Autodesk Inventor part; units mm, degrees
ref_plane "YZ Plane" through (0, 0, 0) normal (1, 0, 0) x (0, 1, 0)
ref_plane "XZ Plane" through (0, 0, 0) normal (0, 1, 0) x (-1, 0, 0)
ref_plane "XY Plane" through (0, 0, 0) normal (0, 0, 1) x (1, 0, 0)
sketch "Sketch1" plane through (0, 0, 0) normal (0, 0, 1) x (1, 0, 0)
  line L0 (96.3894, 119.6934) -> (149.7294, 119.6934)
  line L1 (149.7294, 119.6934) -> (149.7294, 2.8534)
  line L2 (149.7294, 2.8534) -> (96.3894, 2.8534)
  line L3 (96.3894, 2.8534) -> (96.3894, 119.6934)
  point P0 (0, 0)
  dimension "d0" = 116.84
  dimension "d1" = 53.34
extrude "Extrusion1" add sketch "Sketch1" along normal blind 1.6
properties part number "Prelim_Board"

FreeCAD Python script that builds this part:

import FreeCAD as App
import Part
import Sketcher
from FreeCAD import Vector
Q = App.Units.Quantity


def add_polygon(sketch, points):
    """Adds a closed chain of lines whose ends are joined by coincident constraints."""
    first, n = sketch.GeometryCount, len(points)
    for a, b in zip(points, points[1:] + points[:1]):
        sketch.addGeometry(Part.LineSegment(App.Vector(*a, 0), App.Vector(*b, 0)), False)
    for i in range(n):
        sketch.addConstraint(Sketcher.Constraint("Coincident", first + i, 2, first + (i + 1) % n, 1))

doc = App.newDocument("Part")
body = doc.addObject("PartDesign::Body", "Body")

# Sketch on XY plane
sketch1 = doc.addObject("Sketcher::SketchObject", "Sketch")
body.addObject(sketch1)
sketch1.AttachmentSupport = (doc.XY_Plane, [""])
sketch1.MapMode = "FlatFace"
add_polygon(sketch1, [(150, 120), (96, 120), (96, 3), (150, 3)])  # lines 0-3
sketch1.addConstraint(Sketcher.Constraint("Horizontal", 0))
sketch1.addConstraint(Sketcher.Constraint("Vertical", 1))
sketch1.addConstraint(Sketcher.Constraint("Horizontal", 2))
sketch1.addConstraint(Sketcher.Constraint("Vertical", 3))
sketch1.addConstraint(Sketcher.Constraint("DistanceX", 0, 2, 0, 1, Q("2.1 in")))
sketch1.addConstraint(Sketcher.Constraint("DistanceY", 1, 2, 1, 1, Q("4.6 in")))
sketch1.addConstraint(Sketcher.Constraint("DistanceX", -1, 1, 0, 2, 96.3894))
sketch1.addConstraint(Sketcher.Constraint("DistanceY", -1, 1, 0, 2, 119.6934))
pad1 = doc.addObject("PartDesign::Pad", "Pad")
body.addObject(pad1)
pad1.Profile = sketch1
pad1.Length = Q("0.0629921 in")

doc.recompute()
